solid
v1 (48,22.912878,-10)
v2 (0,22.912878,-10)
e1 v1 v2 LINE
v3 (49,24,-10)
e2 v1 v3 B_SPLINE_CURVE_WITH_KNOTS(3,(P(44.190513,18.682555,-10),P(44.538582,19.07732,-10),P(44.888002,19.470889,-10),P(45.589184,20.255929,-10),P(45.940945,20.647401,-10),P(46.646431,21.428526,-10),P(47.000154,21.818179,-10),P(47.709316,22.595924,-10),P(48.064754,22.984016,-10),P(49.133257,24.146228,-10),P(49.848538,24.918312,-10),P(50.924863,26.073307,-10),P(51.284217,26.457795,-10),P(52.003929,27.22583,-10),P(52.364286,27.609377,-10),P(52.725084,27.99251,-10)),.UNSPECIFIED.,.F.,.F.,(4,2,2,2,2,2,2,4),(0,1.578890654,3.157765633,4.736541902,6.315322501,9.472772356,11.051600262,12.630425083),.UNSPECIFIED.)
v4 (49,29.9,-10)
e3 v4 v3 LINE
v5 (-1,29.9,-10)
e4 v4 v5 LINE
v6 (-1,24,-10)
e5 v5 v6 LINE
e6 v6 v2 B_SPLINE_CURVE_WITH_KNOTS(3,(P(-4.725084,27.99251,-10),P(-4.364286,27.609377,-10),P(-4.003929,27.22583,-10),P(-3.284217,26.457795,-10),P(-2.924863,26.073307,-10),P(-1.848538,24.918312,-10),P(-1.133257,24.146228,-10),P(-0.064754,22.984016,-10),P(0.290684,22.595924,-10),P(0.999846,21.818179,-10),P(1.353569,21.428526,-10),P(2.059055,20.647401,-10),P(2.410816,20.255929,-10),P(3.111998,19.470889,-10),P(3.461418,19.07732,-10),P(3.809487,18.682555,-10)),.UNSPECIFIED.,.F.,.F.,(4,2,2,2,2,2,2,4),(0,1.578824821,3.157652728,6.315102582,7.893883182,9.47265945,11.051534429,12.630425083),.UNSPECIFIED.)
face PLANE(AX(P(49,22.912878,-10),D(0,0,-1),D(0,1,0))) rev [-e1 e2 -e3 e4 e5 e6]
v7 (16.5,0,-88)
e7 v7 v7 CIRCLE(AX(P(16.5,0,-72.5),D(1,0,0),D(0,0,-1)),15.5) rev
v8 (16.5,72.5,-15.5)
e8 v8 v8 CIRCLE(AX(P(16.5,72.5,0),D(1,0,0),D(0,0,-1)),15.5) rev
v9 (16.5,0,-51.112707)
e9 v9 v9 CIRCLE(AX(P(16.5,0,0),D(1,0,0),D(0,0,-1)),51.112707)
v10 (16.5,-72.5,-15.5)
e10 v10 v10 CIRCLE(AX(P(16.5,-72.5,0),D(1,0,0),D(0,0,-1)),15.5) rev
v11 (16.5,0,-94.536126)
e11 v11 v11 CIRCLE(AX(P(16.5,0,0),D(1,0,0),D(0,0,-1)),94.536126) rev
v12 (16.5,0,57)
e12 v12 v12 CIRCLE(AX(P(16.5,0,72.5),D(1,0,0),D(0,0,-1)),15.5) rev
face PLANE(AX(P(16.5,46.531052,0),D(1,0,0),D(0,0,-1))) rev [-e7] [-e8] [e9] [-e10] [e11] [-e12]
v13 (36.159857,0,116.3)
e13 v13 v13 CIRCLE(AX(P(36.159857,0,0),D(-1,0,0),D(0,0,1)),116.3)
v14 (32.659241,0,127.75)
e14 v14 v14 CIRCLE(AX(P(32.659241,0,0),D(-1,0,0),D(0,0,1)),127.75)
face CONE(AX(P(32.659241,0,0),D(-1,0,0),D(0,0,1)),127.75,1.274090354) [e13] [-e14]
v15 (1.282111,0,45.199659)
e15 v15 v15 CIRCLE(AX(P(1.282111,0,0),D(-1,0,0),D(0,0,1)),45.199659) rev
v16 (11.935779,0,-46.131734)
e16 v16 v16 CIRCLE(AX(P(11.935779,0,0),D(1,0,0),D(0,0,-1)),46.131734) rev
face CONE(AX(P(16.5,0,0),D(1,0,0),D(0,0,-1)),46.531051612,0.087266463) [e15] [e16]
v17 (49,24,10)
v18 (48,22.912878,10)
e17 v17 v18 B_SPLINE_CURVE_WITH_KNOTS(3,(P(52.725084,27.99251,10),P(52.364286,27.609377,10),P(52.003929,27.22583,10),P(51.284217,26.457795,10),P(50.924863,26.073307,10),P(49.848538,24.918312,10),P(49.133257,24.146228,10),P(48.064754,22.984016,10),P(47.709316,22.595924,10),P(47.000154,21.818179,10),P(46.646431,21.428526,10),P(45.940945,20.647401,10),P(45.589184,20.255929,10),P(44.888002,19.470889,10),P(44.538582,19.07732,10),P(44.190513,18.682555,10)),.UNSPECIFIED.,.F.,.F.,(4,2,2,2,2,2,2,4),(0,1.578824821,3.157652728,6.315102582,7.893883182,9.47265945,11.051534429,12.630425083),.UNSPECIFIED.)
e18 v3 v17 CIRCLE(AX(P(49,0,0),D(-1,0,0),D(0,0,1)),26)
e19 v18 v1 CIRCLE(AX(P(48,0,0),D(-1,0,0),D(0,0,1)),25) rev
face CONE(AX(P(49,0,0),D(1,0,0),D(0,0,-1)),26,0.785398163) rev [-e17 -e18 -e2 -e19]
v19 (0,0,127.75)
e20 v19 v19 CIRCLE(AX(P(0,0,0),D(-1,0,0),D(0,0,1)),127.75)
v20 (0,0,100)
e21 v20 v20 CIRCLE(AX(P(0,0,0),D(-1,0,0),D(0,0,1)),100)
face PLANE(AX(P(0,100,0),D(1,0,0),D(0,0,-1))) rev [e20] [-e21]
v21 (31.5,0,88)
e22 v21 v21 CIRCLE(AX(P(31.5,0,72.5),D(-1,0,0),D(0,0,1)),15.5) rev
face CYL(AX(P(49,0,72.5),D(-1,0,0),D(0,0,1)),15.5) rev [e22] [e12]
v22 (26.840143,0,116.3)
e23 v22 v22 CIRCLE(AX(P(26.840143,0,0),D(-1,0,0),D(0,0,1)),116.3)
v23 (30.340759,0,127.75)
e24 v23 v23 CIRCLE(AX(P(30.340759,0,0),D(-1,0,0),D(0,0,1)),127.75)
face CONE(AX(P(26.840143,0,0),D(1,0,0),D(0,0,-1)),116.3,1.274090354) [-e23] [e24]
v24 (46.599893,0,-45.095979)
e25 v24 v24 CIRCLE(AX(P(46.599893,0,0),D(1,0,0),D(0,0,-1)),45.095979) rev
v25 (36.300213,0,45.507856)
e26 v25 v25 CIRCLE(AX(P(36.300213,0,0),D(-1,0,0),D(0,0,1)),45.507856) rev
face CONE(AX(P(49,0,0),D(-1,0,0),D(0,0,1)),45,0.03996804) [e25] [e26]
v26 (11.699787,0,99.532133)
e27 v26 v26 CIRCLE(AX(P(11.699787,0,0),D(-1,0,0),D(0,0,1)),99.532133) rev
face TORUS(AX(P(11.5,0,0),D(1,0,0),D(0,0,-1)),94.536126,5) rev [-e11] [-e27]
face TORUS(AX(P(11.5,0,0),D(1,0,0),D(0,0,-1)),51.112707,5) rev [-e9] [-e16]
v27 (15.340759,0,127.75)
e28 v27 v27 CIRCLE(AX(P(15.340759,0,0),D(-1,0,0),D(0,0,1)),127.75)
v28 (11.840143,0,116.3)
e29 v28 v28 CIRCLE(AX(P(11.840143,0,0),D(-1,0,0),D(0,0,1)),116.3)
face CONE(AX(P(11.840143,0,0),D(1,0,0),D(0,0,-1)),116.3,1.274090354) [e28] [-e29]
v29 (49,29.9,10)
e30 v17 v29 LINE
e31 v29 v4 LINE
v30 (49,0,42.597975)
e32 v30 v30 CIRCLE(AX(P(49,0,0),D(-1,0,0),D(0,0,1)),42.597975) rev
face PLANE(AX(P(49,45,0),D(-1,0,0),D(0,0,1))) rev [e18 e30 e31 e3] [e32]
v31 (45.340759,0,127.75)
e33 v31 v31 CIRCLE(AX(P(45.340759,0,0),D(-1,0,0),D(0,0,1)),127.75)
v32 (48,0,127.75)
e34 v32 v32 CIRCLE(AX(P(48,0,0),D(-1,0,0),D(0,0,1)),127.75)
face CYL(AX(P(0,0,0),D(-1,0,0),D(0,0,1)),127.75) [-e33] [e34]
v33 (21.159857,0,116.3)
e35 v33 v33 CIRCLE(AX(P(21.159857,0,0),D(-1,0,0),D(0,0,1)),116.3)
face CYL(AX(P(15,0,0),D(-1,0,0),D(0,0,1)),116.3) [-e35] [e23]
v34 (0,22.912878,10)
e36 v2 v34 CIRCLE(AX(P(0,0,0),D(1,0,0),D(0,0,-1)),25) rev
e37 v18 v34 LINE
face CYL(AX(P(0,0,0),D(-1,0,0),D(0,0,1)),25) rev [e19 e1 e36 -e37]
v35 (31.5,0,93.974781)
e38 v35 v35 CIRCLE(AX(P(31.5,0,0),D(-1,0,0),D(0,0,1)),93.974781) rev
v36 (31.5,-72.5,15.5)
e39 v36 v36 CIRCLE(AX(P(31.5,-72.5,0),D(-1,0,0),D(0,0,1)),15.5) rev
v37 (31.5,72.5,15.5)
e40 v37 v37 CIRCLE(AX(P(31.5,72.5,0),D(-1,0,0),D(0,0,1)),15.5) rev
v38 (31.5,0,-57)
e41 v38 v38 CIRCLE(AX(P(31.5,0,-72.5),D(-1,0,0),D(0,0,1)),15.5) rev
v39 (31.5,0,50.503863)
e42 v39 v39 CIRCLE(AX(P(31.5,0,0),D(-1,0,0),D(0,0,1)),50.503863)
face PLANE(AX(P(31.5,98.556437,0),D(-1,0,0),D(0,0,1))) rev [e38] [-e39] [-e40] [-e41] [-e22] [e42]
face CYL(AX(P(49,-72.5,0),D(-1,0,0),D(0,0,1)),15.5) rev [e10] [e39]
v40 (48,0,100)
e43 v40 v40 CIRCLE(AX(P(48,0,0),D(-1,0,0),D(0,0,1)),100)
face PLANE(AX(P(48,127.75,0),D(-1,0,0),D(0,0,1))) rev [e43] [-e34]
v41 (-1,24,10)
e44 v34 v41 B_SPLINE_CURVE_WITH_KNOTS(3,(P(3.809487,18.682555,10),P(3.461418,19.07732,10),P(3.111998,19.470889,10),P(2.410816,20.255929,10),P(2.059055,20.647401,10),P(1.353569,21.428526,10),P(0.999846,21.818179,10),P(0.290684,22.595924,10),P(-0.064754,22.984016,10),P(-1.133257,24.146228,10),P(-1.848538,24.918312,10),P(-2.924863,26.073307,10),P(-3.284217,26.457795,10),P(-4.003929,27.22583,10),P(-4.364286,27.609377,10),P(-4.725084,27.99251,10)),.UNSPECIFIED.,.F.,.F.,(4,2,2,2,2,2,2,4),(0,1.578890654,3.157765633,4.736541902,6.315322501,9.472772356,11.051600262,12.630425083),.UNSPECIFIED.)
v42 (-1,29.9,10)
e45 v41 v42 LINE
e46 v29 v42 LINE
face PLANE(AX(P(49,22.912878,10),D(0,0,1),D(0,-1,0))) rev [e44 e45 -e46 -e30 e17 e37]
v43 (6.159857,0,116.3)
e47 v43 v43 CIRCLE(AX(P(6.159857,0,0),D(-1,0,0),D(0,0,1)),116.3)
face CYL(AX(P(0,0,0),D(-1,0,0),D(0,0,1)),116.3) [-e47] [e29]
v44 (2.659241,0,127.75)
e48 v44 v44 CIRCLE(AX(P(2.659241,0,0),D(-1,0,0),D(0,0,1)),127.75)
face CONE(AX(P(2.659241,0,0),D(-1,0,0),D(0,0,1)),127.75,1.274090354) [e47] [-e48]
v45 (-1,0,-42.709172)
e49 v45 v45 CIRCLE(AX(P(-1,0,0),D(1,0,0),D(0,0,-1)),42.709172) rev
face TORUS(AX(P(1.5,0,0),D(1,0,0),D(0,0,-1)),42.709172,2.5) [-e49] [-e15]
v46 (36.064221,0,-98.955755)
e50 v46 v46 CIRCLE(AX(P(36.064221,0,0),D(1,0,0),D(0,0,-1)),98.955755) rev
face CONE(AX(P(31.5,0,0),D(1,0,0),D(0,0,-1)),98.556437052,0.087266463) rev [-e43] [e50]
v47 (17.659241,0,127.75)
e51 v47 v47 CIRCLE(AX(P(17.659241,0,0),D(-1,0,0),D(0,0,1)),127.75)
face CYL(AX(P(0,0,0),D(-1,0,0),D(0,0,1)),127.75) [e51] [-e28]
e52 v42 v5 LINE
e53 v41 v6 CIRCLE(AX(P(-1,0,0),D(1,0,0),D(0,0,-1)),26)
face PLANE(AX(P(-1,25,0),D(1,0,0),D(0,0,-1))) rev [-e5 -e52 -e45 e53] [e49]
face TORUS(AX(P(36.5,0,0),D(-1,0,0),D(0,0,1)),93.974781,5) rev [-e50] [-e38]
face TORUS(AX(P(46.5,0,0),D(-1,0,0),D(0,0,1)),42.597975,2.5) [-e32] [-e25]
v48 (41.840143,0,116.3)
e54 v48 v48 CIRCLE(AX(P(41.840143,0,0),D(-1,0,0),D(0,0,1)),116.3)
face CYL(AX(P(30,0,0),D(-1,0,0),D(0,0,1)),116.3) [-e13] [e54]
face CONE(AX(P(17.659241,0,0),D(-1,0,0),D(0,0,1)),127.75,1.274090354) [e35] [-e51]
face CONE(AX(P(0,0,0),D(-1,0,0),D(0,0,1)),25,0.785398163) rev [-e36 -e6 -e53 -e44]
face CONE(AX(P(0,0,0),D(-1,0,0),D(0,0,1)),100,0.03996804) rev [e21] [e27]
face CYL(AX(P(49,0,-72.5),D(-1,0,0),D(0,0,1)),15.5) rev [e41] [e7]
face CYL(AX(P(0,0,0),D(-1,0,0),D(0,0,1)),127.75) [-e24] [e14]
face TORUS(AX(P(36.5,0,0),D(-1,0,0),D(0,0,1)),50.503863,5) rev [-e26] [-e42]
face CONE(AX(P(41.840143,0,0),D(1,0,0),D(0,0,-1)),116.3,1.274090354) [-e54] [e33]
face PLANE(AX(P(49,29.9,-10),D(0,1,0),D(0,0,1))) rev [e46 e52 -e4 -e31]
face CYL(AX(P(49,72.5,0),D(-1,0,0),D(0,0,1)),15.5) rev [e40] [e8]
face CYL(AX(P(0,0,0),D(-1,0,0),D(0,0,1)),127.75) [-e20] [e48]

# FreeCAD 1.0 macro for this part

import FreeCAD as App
import Part
import Sketcher
Q = App.Units.Quantity


def edges_at(feature, points):
    """Names of the edges that pass closest to the given points."""
    edges = feature.Shape.Edges
    near = lambda p: min(range(len(edges)), key=lambda i: edges[i].distToShape(Part.Vertex(*p))[0])
    return sorted({f"Edge{near(p) + 1}" for p in points})

doc = App.newDocument("Part")
params = doc.addObject("Spreadsheet::Sheet", "Params")
for row, (alias, value) in enumerate([
    ("sketch1_width", "50 mm"),
    ("sketch1_width2", "48 mm"),
    ("sketch1_height", "20 mm"),
    ("sketch1_height2", "27.75 mm"),
    ("revolution_angle", "360 deg"),
    ("groove_angle", "360 deg"),
    ("linearpattern_pitch", "15 mm"),
    ("chamfer_size", "1 mm"),
    ("sketch3_height", "20 mm"),
    ("fillet_radius", "5 mm"),
    ("fillet2_radius", "2.5 mm"),
    ("sketch4_diameter", "31 mm"),
], start=1):
    params.set(f"A{row}", alias)
    params.set(f"B{row}", "=" + value)
    params.setAlias(f"B{row}", alias)

body = doc.addObject("PartDesign::Body", "Body")

# Sketch on XY plane
sketch1 = body.newObject("Sketcher::SketchObject", "Sketch")
sketch1.AttachmentSupport = (doc.getObject("XY_Plane"), [""])
sketch1.MapMode = "FlatFace"
sketch1.addGeometry([
    Part.LineSegment(App.Vector(-1, 45, 0), App.Vector(-1, 25, 0)),  # 0
    Part.LineSegment(App.Vector(-1, 25, 0), App.Vector(49, 25, 0)),  # 1
    Part.LineSegment(App.Vector(49, 25, 0), App.Vector(49, 45, 0)),  # 2
    Part.LineSegment(App.Vector(49, 45, 0), App.Vector(32, 46, 0)),  # 3
    Part.LineSegment(App.Vector(32, 46, 0), App.Vector(32, 99, 0)),  # 4
    Part.LineSegment(App.Vector(32, 99, 0), App.Vector(48, 100, 0)),  # 5
    Part.LineSegment(App.Vector(48, 100, 0), App.Vector(48, 128, 0)),  # 6
    Part.LineSegment(App.Vector(48, 128, 0), App.Vector(0, 128, 0)),  # 7
    Part.LineSegment(App.Vector(0, 128, 0), App.Vector(0, 100, 0)),  # 8
    Part.LineSegment(App.Vector(0, 100, 0), App.Vector(16, 99, 0)),  # 9
    Part.LineSegment(App.Vector(16, 99, 0), App.Vector(16, 47, 0)),  # 10
    Part.LineSegment(App.Vector(16, 47, 0), App.Vector(-1, 45, 0)),  # 11
], False)
sketch1.addConstraint([
    Sketcher.Constraint("Coincident", 0, 2, 1, 1),
    Sketcher.Constraint("Coincident", 1, 2, 2, 1),
    Sketcher.Constraint("Coincident", 2, 2, 3, 1),
    Sketcher.Constraint("Coincident", 3, 2, 4, 1),
    Sketcher.Constraint("Coincident", 4, 2, 5, 1),
    Sketcher.Constraint("Coincident", 5, 2, 6, 1),
    Sketcher.Constraint("Coincident", 6, 2, 7, 1),
    Sketcher.Constraint("Coincident", 7, 2, 8, 1),
    Sketcher.Constraint("Coincident", 8, 2, 9, 1),
    Sketcher.Constraint("Coincident", 9, 2, 10, 1),
    Sketcher.Constraint("Coincident", 10, 2, 11, 1),
    Sketcher.Constraint("Coincident", 11, 2, 0, 1),
    Sketcher.Constraint("Vertical", 0),
    Sketcher.Constraint("Horizontal", 1),
    Sketcher.Constraint("Vertical", 2),
    Sketcher.Constraint("Vertical", 4),
    Sketcher.Constraint("Vertical", 6),
    Sketcher.Constraint("Horizontal", 7),
    Sketcher.Constraint("Vertical", 8),
    Sketcher.Constraint("Vertical", 10),
    Sketcher.Constraint("PointOnObject", 7, 2, -2),
    Sketcher.Constraint("Parallel", 3, 9),
    Sketcher.Constraint("Parallel", 5, 11),
    Sketcher.Constraint("Horizontal", 5, 2, 8, 2),
    Sketcher.Constraint("Horizontal", 2, 2, 11, 2),
    Sketcher.Constraint("DistanceX", 1, 1, 1, 2, 50.0),
    Sketcher.Constraint("DistanceX", 7, 2, 7, 1, 48.0),
    Sketcher.Constraint("DistanceY", 0, 2, 0, 1, 20.0),
    Sketcher.Constraint("Angle", 5, Q("5 deg")),
    Sketcher.Constraint("DistanceX", 0, 2, -1, 1, 1.0),
    Sketcher.Constraint("DistanceY", -1, 1, 0, 2, 25.0),
    Sketcher.Constraint("DistanceY", -1, 1, 5, 2, 100.0),
    Sketcher.Constraint("DistanceX", 9, 2, 4, 2, 15.0),
    Sketcher.Constraint("DistanceY", 6, 1, 6, 2, 27.75),
    Sketcher.Constraint("DistanceX", -1, 1, 3, 2, 31.5),
    Sketcher.Constraint("Angle", 3, Q("177.71 deg")),
])
sketch1.setExpression("Constraints[25]", "Params.sketch1_width")
sketch1.setExpression("Constraints[26]", "Params.sketch1_width2")
sketch1.setExpression("Constraints[27]", "Params.sketch1_height")
sketch1.setExpression("Constraints[33]", "Params.sketch1_height2")
revolution = body.newObject("PartDesign::Revolution", "Revolution")
revolution.Profile = sketch1
revolution.ReferenceAxis = (sketch1, ["H_Axis"])
revolution.setExpression("Angle", "Params.revolution_angle")

# Sketch on XY plane
sketch2 = body.newObject("Sketcher::SketchObject", "Sketch001")
sketch2.AttachmentSupport = (doc.getObject("XY_Plane"), [""])
sketch2.MapMode = "FlatFace"
sketch2.addGeometry([
    Part.LineSegment(App.Vector(12, 116, 0), App.Vector(15, 128, 0)),
    Part.LineSegment(App.Vector(15, 128, 0), App.Vector(3, 128, 0)),
    Part.LineSegment(App.Vector(3, 128, 0), App.Vector(6, 116, 0)),
    Part.LineSegment(App.Vector(6, 116, 0), App.Vector(12, 116, 0)),
], False)
sketch2.addConstraint([
    Sketcher.Constraint("Coincident", 0, 2, 1, 1),
    Sketcher.Constraint("Coincident", 1, 2, 2, 1),
    Sketcher.Constraint("Coincident", 2, 2, 3, 1),
    Sketcher.Constraint("Coincident", 3, 2, 0, 1),
    Sketcher.Constraint("Horizontal", 1),
    Sketcher.Constraint("Horizontal", 3),
    Sketcher.Constraint("Equal", 0, 2),
    Sketcher.Constraint("Angle", 0, Q("73 deg")),
    Sketcher.Constraint("DistanceY", -1, 1, 2, 2, 116.3),
    Sketcher.Constraint("DistanceY", -1, 1, 0, 2, 127.75),
    Sketcher.Constraint("DistanceX", 1, 2, 1, 1, 12.681519),
    Sketcher.Constraint("DistanceX", -1, 1, 0, 2, 15.340759),
])
groove = body.newObject("PartDesign::Groove", "Groove")
groove.Profile = sketch2
groove.ReferenceAxis = (sketch2, ["H_Axis"])
groove.setExpression("Angle", "Params.groove_angle")
doc.recompute()

linearpattern = body.newObject("PartDesign::LinearPattern", "LinearPattern")
linearpattern.Originals = [groove]
linearpattern.Direction = (doc.getObject("X_Axis"), [""])
linearpattern.Mode = "offset"
linearpattern.setExpression("Offset", "Params.linearpattern_pitch")
linearpattern.Occurrences = 3
body.Tip = linearpattern
doc.recompute()

chamfer = body.newObject("PartDesign::Chamfer", "Chamfer")
chamfer.Base = (linearpattern, edges_at(linearpattern, [(-1, 0, -25), (49, 0, -25)]))
chamfer.setExpression("Size", "Params.chamfer_size")

# Sketch on YZ plane
sketch3 = body.newObject("Sketcher::SketchObject", "Sketch002")
sketch3.AttachmentSupport = (doc.getObject("YZ_Plane"), [""])
sketch3.MapMode = "FlatFace"
sketch3.AttachmentOffset = App.Placement(App.Vector(0, 0, -1), App.Rotation())
sketch3.addGeometry([
    Part.LineSegment(App.Vector(30, -10, 0), App.Vector(23, -10, 0)),
    Part.LineSegment(App.Vector(23, -10, 0), App.Vector(23, 10, 0)),
    Part.LineSegment(App.Vector(23, 10, 0), App.Vector(30, 10, 0)),
    Part.LineSegment(App.Vector(30, 10, 0), App.Vector(30, -10, 0)),
], False)
sketch3.addConstraint([
    Sketcher.Constraint("Coincident", 0, 2, 1, 1),
    Sketcher.Constraint("Coincident", 1, 2, 2, 1),
    Sketcher.Constraint("Coincident", 2, 2, 3, 1),
    Sketcher.Constraint("Coincident", 3, 2, 0, 1),
    Sketcher.Constraint("Horizontal", 0),
    Sketcher.Constraint("Vertical", 1),
    Sketcher.Constraint("Horizontal", 2),
    Sketcher.Constraint("Vertical", 3),
    Sketcher.Constraint("DistanceY", 1, 1, 1, 2, 20.0),
    Sketcher.Constraint("DistanceY", 0, 2, -1, 1, 10.0),
    Sketcher.Constraint("DistanceX", -1, 1, 2, 2, 29.9),
    Sketcher.Constraint("DistanceX", 0, 2, 0, 1, 6.987122),
])
sketch3.setExpression("Constraints[8]", "Params.sketch3_height")
pocket1 = body.newObject("PartDesign::Pocket", "Pocket")
pocket1.Profile = sketch3
pocket1.Type = "ThroughAll"
pocket1.Reversed = True
doc.recompute()

fillet = body.newObject("PartDesign::Fillet", "Fillet")
fillet.Base = (pocket1, edges_at(pocket1, [
    (16.5, 0, -99.34),
    (16.5, 0, -46.531),
    (31.5, 0, -45.7),
    (31.5, 0, -98.556),
]))
fillet.setExpression("Radius", "Params.fillet_radius")
doc.recompute()

fillet2 = body.newObject("PartDesign::Fillet", "Fillet001")
fillet2.Base = (fillet, edges_at(fillet, [(-1, 0, -45), (49, 0, -45)]))
fillet2.setExpression("Radius", "Params.fillet2_radius")

# Sketch on YZ plane
sketch4 = body.newObject("Sketcher::SketchObject", "Sketch003")
sketch4.AttachmentSupport = (doc.getObject("YZ_Plane"), [""])
sketch4.MapMode = "FlatFace"
sketch4.addGeometry(Part.Circle(App.Vector(72, 0, 0), App.Vector(0, 0, 1), 16), False)
sketch4.addConstraint([
    Sketcher.Constraint("PointOnObject", 0, 3, -1),
    Sketcher.Constraint("Diameter", 0, 31.0),
    Sketcher.Constraint("DistanceX", -1, 1, 0, 3, 72.5),
])
sketch4.setExpression("Constraints[1]", "Params.sketch4_diameter")
pocket2 = body.newObject("PartDesign::Pocket", "Pocket001")
pocket2.Profile = sketch4
pocket2.Type = "ThroughAll"
pocket2.Reversed = True
doc.recompute()

polarpattern = body.newObject("PartDesign::PolarPattern", "PolarPattern")
polarpattern.Originals = [pocket2]
polarpattern.Axis = (doc.getObject("X_Axis"), [""])
polarpattern.Angle = 360
polarpattern.Occurrences = 4
body.Tip = polarpattern

doc.recompute()
